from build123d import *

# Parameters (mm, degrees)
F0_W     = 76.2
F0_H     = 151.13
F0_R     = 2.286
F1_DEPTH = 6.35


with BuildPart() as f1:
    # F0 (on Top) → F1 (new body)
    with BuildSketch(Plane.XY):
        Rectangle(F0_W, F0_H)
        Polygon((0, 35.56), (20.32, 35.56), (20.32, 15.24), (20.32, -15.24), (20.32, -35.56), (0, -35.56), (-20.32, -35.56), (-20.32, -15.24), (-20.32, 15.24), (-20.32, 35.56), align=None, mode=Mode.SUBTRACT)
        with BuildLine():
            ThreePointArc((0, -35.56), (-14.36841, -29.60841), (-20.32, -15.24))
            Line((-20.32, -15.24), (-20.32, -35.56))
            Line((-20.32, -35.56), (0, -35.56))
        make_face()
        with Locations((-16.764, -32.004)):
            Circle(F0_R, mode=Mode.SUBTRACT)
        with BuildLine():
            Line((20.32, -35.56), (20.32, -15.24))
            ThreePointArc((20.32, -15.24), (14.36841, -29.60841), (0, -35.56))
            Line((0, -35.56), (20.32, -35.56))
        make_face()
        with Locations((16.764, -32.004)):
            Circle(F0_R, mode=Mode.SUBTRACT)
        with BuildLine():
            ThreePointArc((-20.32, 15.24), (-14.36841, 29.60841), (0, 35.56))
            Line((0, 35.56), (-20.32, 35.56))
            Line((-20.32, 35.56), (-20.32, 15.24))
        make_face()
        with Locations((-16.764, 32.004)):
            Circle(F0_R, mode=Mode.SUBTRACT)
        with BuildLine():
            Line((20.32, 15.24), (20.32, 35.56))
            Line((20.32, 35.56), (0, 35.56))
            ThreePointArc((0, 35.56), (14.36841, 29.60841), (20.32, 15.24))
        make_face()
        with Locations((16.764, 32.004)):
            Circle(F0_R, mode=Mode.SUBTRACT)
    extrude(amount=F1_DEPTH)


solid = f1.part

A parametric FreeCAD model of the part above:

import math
import FreeCAD as App
import Part
import Sketcher

V = App.Vector
Q = App.Units.Quantity


def add_polygon(sketch, points):
    """Adds a closed chain of lines whose ends are joined by coincident constraints."""
    first, n = sketch.GeometryCount, len(points)
    for a, b in zip(points, points[1:] + points[:1]):
        sketch.addGeometry(Part.LineSegment(App.Vector(*a, 0), App.Vector(*b, 0)), False)
    for i in range(n):
        sketch.addConstraint(Sketcher.Constraint("Coincident", first + i, 2, first + (i + 1) % n, 1))

doc = App.newDocument("Part")
body = doc.addObject("PartDesign::Body", "Body")

sketch1 = body.newObject("Sketcher::SketchObject", "Sketch")
sketch1.AttachmentSupport = (doc.getObject("XY_Plane"), [""])
sketch1.MapMode = "FlatFace"
add_polygon(sketch1, [(-38.1, 75.6), (-38.1, -75.6), (38.1, -75.6), (38.1, 75.6)])
sketch1.addGeometry(Part.Circle(V(-16.8, -32, 0), V(0, 0, 1), 2.3), False)
sketch1.addGeometry(Part.Circle(V(16.8, -32, 0), V(0, 0, 1), 2.3), False)
sketch1.addGeometry(Part.Circle(V(-16.8, 32, 0), V(0, 0, 1), 2.3), False)
sketch1.addGeometry(Part.ArcOfCircle(Part.Circle(V(0, 15.2, 0), V(0, 0, 1), 20.3), math.radians(90), math.radians(180)), False)
sketch1.addGeometry(Part.ArcOfCircle(Part.Circle(V(0, 15.2, 0), V(0, 0, 1), 20.3), math.radians(0), math.radians(90)), False)
sketch1.addGeometry(Part.LineSegment(V(20.3, 15.2, 0), V(20.3, -15.2, 0)), False)
sketch1.addGeometry(Part.ArcOfCircle(Part.Circle(V(0, -15.2, 0), V(0, 0, 1), 20.3), math.radians(-90), math.radians(0)), False)
sketch1.addGeometry(Part.ArcOfCircle(Part.Circle(V(0, -15.2, 0), V(0, 0, 1), 20.3), math.radians(180), math.radians(270)), False)
sketch1.addGeometry(Part.LineSegment(V(-20.3, -15.2, 0), V(-20.3, 15.2, 0)), False)
sketch1.addGeometry(Part.Circle(V(16.8, 32, 0), V(0, 0, 1), 2.3), False)
sketch1.addConstraint([
    Sketcher.Constraint("Tangent", 7, 1, 8, 2),
    Sketcher.Constraint("Tangent", 8, 1, 9, 1),
    Sketcher.Constraint("Tangent", 9, 2, 10, 2),
    Sketcher.Constraint("Tangent", 10, 1, 11, 2),
    Sketcher.Constraint("Tangent", 11, 1, 12, 1),
    Sketcher.Constraint("Tangent", 12, 2, 7, 2),
    Sketcher.Constraint("Vertical", 0),
    Sketcher.Constraint("Horizontal", 1),
    Sketcher.Constraint("Vertical", 2),
    Sketcher.Constraint("Horizontal", 3),
    Sketcher.Constraint("Vertical", 9),
    Sketcher.Constraint("Vertical", 12),
    Sketcher.Constraint("Equal", 4, 5),
    Sketcher.Constraint("Equal", 5, 6),
    Sketcher.Constraint("Equal", 7, 8),
    Sketcher.Constraint("Equal", 8, 10),
    Sketcher.Constraint("Equal", 6, 13),
    Sketcher.Constraint("Symmetric", 5, 3, 6, 3, -1, 1),
    Sketcher.Constraint("Symmetric", 7, 3, 10, 3, -1, 1),
    Sketcher.Constraint("Symmetric", 4, 3, 13, 3, -1, 1),
    Sketcher.Constraint("Symmetric", 0, 2, 2, 2, -1, 1),
    Sketcher.Constraint("Symmetric", 4, 3, 5, 3, -2),
    Sketcher.Constraint("PointOnObject", 7, 1, -2),
    Sketcher.Constraint("PointOnObject", 10, 1, -2),
    Sketcher.Constraint("Radius", 7, Q("0.8 in")),
    Sketcher.Constraint("Diameter", 4, Q("0.18 in")),
    Sketcher.Constraint("DistanceX", 1, 1, 1, 2, Q("3 in")),
    Sketcher.Constraint("DistanceY", 9, 2, 9, 1, Q("1.2 in")),
    Sketcher.Constraint("DistanceY", 0, 2, 0, 1, Q("5.95 in")),
    Sketcher.Constraint("DistanceX", 4, 3, -1, 1, Q("0.66 in")),
    Sketcher.Constraint("DistanceY", 4, 3, -1, 1, Q("1.26 in")),
])
pad1 = body.newObject("PartDesign::Pad", "Pad")
pad1.Profile = sketch1
pad1.Length = Q("0.25 in")

doc.recompute()
